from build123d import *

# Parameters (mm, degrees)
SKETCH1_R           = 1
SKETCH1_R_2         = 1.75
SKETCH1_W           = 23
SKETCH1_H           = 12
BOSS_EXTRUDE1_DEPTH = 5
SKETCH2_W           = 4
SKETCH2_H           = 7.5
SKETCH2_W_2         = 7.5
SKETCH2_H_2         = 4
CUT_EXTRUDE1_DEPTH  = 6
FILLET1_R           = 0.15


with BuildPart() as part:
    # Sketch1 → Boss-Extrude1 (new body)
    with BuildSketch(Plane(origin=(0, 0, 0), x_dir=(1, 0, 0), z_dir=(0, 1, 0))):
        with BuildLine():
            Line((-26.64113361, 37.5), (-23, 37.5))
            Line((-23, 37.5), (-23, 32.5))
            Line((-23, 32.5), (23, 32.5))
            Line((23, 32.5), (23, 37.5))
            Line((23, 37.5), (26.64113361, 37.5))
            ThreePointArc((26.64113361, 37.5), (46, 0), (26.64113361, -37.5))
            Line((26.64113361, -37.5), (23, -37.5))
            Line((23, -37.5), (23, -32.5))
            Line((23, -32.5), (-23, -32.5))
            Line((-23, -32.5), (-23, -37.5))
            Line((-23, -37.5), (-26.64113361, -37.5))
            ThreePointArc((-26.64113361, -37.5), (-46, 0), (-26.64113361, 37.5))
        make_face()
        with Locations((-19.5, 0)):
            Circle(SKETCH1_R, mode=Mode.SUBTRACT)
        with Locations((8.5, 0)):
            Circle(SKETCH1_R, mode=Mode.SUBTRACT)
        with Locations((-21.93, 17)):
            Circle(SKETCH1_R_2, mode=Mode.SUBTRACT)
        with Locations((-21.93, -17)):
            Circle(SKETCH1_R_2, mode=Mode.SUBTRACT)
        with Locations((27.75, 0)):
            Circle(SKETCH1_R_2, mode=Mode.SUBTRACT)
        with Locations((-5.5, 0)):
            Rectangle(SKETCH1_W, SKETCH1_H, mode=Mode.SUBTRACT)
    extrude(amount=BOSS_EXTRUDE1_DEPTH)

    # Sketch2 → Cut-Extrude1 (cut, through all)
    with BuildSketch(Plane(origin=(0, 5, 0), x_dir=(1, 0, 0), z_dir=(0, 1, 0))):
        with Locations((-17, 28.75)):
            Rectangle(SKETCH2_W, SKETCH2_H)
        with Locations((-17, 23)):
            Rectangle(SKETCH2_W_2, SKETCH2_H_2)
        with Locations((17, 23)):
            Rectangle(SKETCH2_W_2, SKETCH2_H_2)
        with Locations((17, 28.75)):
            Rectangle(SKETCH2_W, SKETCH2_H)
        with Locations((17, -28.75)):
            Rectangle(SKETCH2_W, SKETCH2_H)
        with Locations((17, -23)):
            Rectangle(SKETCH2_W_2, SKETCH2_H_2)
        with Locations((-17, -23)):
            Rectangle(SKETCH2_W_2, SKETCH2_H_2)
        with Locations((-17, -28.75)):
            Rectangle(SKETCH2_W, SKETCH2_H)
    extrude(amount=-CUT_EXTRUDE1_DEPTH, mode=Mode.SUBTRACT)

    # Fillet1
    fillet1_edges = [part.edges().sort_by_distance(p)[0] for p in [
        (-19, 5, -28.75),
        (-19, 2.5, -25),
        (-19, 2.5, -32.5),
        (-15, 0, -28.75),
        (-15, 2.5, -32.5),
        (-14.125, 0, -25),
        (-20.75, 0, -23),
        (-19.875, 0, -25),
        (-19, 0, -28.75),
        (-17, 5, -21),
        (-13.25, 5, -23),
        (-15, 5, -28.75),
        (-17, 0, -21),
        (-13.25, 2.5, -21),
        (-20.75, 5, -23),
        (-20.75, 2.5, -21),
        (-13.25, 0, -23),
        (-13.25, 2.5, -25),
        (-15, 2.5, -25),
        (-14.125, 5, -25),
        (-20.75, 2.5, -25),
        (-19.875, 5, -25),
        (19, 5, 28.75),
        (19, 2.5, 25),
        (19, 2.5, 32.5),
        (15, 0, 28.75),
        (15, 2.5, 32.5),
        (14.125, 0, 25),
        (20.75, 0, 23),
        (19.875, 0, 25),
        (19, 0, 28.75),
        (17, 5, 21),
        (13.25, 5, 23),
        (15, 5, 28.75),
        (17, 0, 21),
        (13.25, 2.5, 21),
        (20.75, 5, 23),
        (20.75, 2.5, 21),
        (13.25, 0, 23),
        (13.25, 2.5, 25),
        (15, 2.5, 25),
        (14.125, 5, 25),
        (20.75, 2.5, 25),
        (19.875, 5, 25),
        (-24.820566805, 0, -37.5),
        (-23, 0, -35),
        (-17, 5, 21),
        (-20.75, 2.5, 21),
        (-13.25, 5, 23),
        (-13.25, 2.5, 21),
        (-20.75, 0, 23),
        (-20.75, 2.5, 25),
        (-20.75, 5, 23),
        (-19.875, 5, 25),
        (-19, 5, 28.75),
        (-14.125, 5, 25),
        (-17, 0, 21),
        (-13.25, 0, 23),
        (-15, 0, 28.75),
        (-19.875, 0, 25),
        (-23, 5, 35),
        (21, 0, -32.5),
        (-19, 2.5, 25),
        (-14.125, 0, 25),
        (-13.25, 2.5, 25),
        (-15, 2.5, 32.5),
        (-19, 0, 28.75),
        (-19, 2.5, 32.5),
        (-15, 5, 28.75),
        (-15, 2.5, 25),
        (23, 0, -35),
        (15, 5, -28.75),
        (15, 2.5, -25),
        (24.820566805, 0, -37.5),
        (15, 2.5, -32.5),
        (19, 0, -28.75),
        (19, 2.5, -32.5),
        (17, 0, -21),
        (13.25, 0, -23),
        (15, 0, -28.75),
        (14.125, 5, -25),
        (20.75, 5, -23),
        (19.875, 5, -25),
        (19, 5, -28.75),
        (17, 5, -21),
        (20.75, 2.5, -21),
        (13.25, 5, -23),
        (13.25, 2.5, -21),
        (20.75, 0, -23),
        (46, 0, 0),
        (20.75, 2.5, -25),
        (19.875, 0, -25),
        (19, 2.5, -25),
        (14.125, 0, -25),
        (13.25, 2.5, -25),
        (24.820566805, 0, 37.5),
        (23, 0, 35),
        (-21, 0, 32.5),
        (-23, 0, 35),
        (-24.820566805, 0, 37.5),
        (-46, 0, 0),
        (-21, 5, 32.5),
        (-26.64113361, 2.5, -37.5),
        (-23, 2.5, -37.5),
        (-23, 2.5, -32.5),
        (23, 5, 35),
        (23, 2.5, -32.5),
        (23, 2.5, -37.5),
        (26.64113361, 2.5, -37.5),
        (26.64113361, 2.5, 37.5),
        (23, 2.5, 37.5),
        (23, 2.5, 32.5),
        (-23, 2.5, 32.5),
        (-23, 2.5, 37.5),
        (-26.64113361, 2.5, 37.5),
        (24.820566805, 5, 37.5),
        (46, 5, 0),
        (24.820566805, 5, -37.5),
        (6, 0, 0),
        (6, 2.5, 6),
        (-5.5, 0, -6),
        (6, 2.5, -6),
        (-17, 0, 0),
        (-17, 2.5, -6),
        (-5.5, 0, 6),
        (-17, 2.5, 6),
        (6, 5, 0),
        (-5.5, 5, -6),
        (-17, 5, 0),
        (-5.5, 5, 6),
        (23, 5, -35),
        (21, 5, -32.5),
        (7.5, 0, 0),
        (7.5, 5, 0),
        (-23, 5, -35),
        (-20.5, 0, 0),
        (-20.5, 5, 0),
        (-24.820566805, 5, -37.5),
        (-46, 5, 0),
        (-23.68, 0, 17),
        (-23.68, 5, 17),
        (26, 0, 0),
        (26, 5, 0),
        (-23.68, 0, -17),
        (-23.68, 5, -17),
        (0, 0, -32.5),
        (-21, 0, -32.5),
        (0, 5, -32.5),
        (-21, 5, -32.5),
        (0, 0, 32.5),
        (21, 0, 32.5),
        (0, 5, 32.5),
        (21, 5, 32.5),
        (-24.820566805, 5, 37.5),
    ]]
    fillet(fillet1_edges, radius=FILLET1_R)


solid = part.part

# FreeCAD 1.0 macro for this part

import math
import FreeCAD as App
import Part
import Sketcher
from FreeCAD import Vector
Q = App.Units.Quantity


def add_polygon(sketch, points):
    """Adds a closed chain of lines whose ends are joined by coincident constraints."""
    first, n = sketch.GeometryCount, len(points)
    for a, b in zip(points, points[1:] + points[:1]):
        sketch.addGeometry(Part.LineSegment(App.Vector(*a, 0), App.Vector(*b, 0)), False)
    for i in range(n):
        sketch.addConstraint(Sketcher.Constraint("Coincident", first + i, 2, first + (i + 1) % n, 1))

doc = App.newDocument("Part")
body = doc.addObject("PartDesign::Body", "Body")

sketch1 = body.newObject("Sketcher::SketchObject", "Sketch")
sketch1.AttachmentSupport = (doc.getObject("XZ_Plane"), [""])
sketch1.MapMode = "FlatFace"
sketch1.addGeometry(Part.LineSegment(Vector(-23, -37.5, 0), Vector(-26.6, -37.5, 0)), False)
sketch1.addGeometry(Part.ArcOfCircle(Part.Circle(Vector(0, 0, 0), Vector(0, 0, 1), 46), math.radians(125), math.radians(235)), False)
sketch1.addGeometry(Part.LineSegment(Vector(-26.6, 37.5, 0), Vector(-23, 37.5, 0)), False)
sketch1.addGeometry(Part.LineSegment(Vector(-23, 37.5, 0), Vector(-23, 32.5, 0)), False)
sketch1.addGeometry(Part.LineSegment(Vector(-23, 32.5, 0), Vector(23, 32.5, 0)), False)
sketch1.addGeometry(Part.LineSegment(Vector(23, 32.5, 0), Vector(23, 37.5, 0)), False)
sketch1.addGeometry(Part.LineSegment(Vector(23, 37.5, 0), Vector(26.6, 37.5, 0)), False)
sketch1.addGeometry(Part.ArcOfCircle(Part.Circle(Vector(0, 0, 0), Vector(0, 0, 1), 46), math.radians(-55), math.radians(55)), False)
sketch1.addGeometry(Part.LineSegment(Vector(26.6, -37.5, 0), Vector(23, -37.5, 0)), False)
sketch1.addGeometry(Part.LineSegment(Vector(23, -37.5, 0), Vector(23, -32.5, 0)), False)
sketch1.addGeometry(Part.LineSegment(Vector(23, -32.5, 0), Vector(-23, -32.5, 0)), False)
sketch1.addGeometry(Part.LineSegment(Vector(-23, -32.5, 0), Vector(-23, -37.5, 0)), False)
sketch1.addGeometry(Part.Circle(Vector(-21.9, 17, 0), Vector(0, 0, 1), 1.8), False)
sketch1.addGeometry(Part.Circle(Vector(27.8, 0, 0), Vector(0, 0, 1), 1.8), False)
sketch1.addGeometry(Part.Circle(Vector(8.5, 0, 0), Vector(0, 0, 1), 1), False)
add_polygon(sketch1, [(-17, 6), (-17, -6), (6, -6), (6, 6)])
sketch1.addGeometry(Part.Circle(Vector(-19.5, 0, 0), Vector(0, 0, 1), 1), False)
sketch1.addGeometry(Part.Circle(Vector(-21.9, -17, 0), Vector(0, 0, 1), 1.8), False)
sketch1.addConstraint(Sketcher.Constraint("Coincident", 0, 2, 1, 2))
sketch1.addConstraint(Sketcher.Constraint("Coincident", 1, 1, 2, 1))
sketch1.addConstraint(Sketcher.Constraint("Coincident", 2, 2, 3, 1))
sketch1.addConstraint(Sketcher.Constraint("Coincident", 3, 2, 4, 1))
sketch1.addConstraint(Sketcher.Constraint("Coincident", 4, 2, 5, 1))
sketch1.addConstraint(Sketcher.Constraint("Coincident", 5, 2, 6, 1))
sketch1.addConstraint(Sketcher.Constraint("Coincident", 6, 2, 7, 2))
sketch1.addConstraint(Sketcher.Constraint("Coincident", 7, 1, 8, 1))
sketch1.addConstraint(Sketcher.Constraint("Coincident", 8, 2, 9, 1))
sketch1.addConstraint(Sketcher.Constraint("Coincident", 9, 2, 10, 1))
sketch1.addConstraint(Sketcher.Constraint("Coincident", 10, 2, 11, 1))
sketch1.addConstraint(Sketcher.Constraint("Coincident", 11, 2, 0, 1))
sketch1.addConstraint(Sketcher.Constraint("Horizontal", 0))
sketch1.addConstraint(Sketcher.Constraint("Horizontal", 2))
sketch1.addConstraint(Sketcher.Constraint("Vertical", 3))
sketch1.addConstraint(Sketcher.Constraint("Horizontal", 4))
sketch1.addConstraint(Sketcher.Constraint("Vertical", 5))
sketch1.addConstraint(Sketcher.Constraint("Horizontal", 6))
sketch1.addConstraint(Sketcher.Constraint("Horizontal", 8))
sketch1.addConstraint(Sketcher.Constraint("Vertical", 9))
sketch1.addConstraint(Sketcher.Constraint("Horizontal", 10))
sketch1.addConstraint(Sketcher.Constraint("Vertical", 11))
sketch1.addConstraint(Sketcher.Constraint("Vertical", 15))
sketch1.addConstraint(Sketcher.Constraint("Horizontal", 16))
sketch1.addConstraint(Sketcher.Constraint("Vertical", 17))
sketch1.addConstraint(Sketcher.Constraint("Horizontal", 18))
sketch1.addConstraint(Sketcher.Constraint("Coincident", 1, 3, -1, 1))
sketch1.addConstraint(Sketcher.Constraint("Coincident", 7, 3, -1, 1))
sketch1.addConstraint(Sketcher.Constraint("Equal", 1, 7))
sketch1.addConstraint(Sketcher.Constraint("Equal", 12, 13))
sketch1.addConstraint(Sketcher.Constraint("Equal", 14, 19))
sketch1.addConstraint(Sketcher.Constraint("Equal", 13, 20))
sketch1.addConstraint(Sketcher.Constraint("Symmetric", 2, 2, 8, 2, -1, 1))
sketch1.addConstraint(Sketcher.Constraint("Symmetric", 4, 2, 10, 2, -1, 1))
sketch1.addConstraint(Sketcher.Constraint("Symmetric", 2, 2, 5, 2, -2))
sketch1.addConstraint(Sketcher.Constraint("Symmetric", 12, 3, 20, 3, -1))
sketch1.addConstraint(Sketcher.Constraint("PointOnObject", 13, 3, -1))
sketch1.addConstraint(Sketcher.Constraint("PointOnObject", 14, 3, -1))
sketch1.addConstraint(Sketcher.Constraint("PointOnObject", 19, 3, -1))
sketch1.addConstraint(Sketcher.Constraint("Horizontal", 0, 2, 7, 1))
sketch1.addConstraint(Sketcher.Constraint("Diameter", 14, Q("2 mm")))
sketch1.addConstraint(Sketcher.Constraint("Radius", 1, Q("46 mm")))
sketch1.addConstraint(Sketcher.Constraint("Diameter", 12, Q("3.5 mm")))
sketch1.addConstraint(Sketcher.Constraint("DistanceX", 4, 1, 4, 2, Q("46 mm")))
sketch1.addConstraint(Sketcher.Constraint("DistanceX", 16, 1, 16, 2, Q("23 mm")))
sketch1.addConstraint(Sketcher.Constraint("DistanceY", 3, 2, 3, 1, Q("5 mm")))
sketch1.addConstraint(Sketcher.Constraint("DistanceY", 15, 2, 15, 1, Q("12 mm")))
sketch1.addConstraint(Sketcher.Constraint("DistanceY", -1, 1, 12, 3, Q("17 mm")))
sketch1.addConstraint(Sketcher.Constraint("DistanceX", 15, 2, -1, 1, Q("17 mm")))
sketch1.addConstraint(Sketcher.Constraint("DistanceY", 15, 2, -1, 1, Q("6 mm")))
sketch1.addConstraint(Sketcher.Constraint("DistanceX", 19, 3, 14, 3, Q("28 mm")))
sketch1.addConstraint(Sketcher.Constraint("DistanceX", -1, 1, 14, 3, Q("8.5 mm")))
sketch1.addConstraint(Sketcher.Constraint("DistanceY", 0, 2, -1, 1, Q("37.5 mm")))
sketch1.addConstraint(Sketcher.Constraint("DistanceX", 12, 3, -1, 1, Q("21.93 mm")))
sketch1.addConstraint(Sketcher.Constraint("DistanceX", -1, 1, 13, 3, Q("27.75 mm")))
pad1 = body.newObject("PartDesign::Pad", "Pad")
pad1.Profile = sketch1
pad1.Length = 5
pad1.Reversed = True

sketch2 = body.newObject("Sketcher::SketchObject", "Sketch001")
sketch2.AttachmentSupport = (doc.getObject("XZ_Plane"), [""])
sketch2.MapMode = "FlatFace"
sketch2.AttachmentOffset = App.Placement(Vector(0, 0, -5), App.Rotation())
add_polygon(sketch2, [(-19, -32.5), (-19, -25), (-20.8, -25), (-20.8, -21), (-13.2, -21), (-13.2, -25), (-15, -25), (-15, -32.5)])
add_polygon(sketch2, [(13.2, -25), (13.2, -21), (20.8, -21), (20.8, -25), (19, -25), (19, -32.5), (15, -32.5), (15, -25)])
add_polygon(sketch2, [(15, 25), (15, 32.5), (19, 32.5), (19, 25), (20.8, 25), (20.8, 21), (13.2, 21), (13.2, 25)])
add_polygon(sketch2, [(-20.8, 21), (-20.8, 25), (-19, 25), (-19, 32.5), (-15, 32.5), (-15, 25), (-13.2, 25), (-13.2, 21)])
sketch2.addConstraint(Sketcher.Constraint("Vertical", 0))
sketch2.addConstraint(Sketcher.Constraint("Horizontal", 1))
sketch2.addConstraint(Sketcher.Constraint("Vertical", 2))
sketch2.addConstraint(Sketcher.Constraint("Horizontal", 3))
sketch2.addConstraint(Sketcher.Constraint("Vertical", 4))
sketch2.addConstraint(Sketcher.Constraint("Horizontal", 5))
sketch2.addConstraint(Sketcher.Constraint("Vertical", 6))
sketch2.addConstraint(Sketcher.Constraint("Horizontal", 7))
sketch2.addConstraint(Sketcher.Constraint("Vertical", 8))
sketch2.addConstraint(Sketcher.Constraint("Horizontal", 9))
sketch2.addConstraint(Sketcher.Constraint("Vertical", 10))
sketch2.addConstraint(Sketcher.Constraint("Horizontal", 11))
sketch2.addConstraint(Sketcher.Constraint("Vertical", 12))
sketch2.addConstraint(Sketcher.Constraint("Horizontal", 13))
sketch2.addConstraint(Sketcher.Constraint("Vertical", 14))
sketch2.addConstraint(Sketcher.Constraint("Horizontal", 15))
sketch2.addConstraint(Sketcher.Constraint("Vertical", 16))
sketch2.addConstraint(Sketcher.Constraint("Horizontal", 17))
sketch2.addConstraint(Sketcher.Constraint("Vertical", 18))
sketch2.addConstraint(Sketcher.Constraint("Horizontal", 19))
sketch2.addConstraint(Sketcher.Constraint("Vertical", 20))
sketch2.addConstraint(Sketcher.Constraint("Horizontal", 21))
sketch2.addConstraint(Sketcher.Constraint("Vertical", 22))
sketch2.addConstraint(Sketcher.Constraint("Horizontal", 23))
sketch2.addConstraint(Sketcher.Constraint("Vertical", 24))
sketch2.addConstraint(Sketcher.Constraint("Horizontal", 25))
sketch2.addConstraint(Sketcher.Constraint("Vertical", 26))
sketch2.addConstraint(Sketcher.Constraint("Horizontal", 27))
sketch2.addConstraint(Sketcher.Constraint("Vertical", 28))
sketch2.addConstraint(Sketcher.Constraint("Horizontal", 29))
sketch2.addConstraint(Sketcher.Constraint("Vertical", 30))
sketch2.addConstraint(Sketcher.Constraint("Horizontal", 31))
sketch2.addConstraint(Sketcher.Constraint("Symmetric", 6, 2, 16, 2, -1, 1))
sketch2.addConstraint(Sketcher.Constraint("Symmetric", 0, 2, 18, 2, -1, 1))
sketch2.addConstraint(Sketcher.Constraint("Symmetric", 2, 2, 20, 2, -1, 1))
sketch2.addConstraint(Sketcher.Constraint("Symmetric", 4, 2, 22, 2, -1, 1))
sketch2.addConstraint(Sketcher.Constraint("Symmetric", 10, 2, 24, 2, -1, 1))
sketch2.addConstraint(Sketcher.Constraint("Symmetric", 12, 2, 26, 2, -1, 1))
sketch2.addConstraint(Sketcher.Constraint("Symmetric", 14, 2, 28, 2, -1, 1))
sketch2.addConstraint(Sketcher.Constraint("Symmetric", 8, 2, 30, 2, -1, 1))
sketch2.addConstraint(Sketcher.Constraint("Symmetric", 3, 2, 8, 2, -2))
sketch2.addConstraint(Sketcher.Constraint("Symmetric", 1, 2, 10, 2, -2))
sketch2.addConstraint(Sketcher.Constraint("Symmetric", 7, 2, 12, 2, -2))
sketch2.addConstraint(Sketcher.Constraint("Symmetric", 5, 2, 14, 2, -2))
sketch2.addConstraint(Sketcher.Constraint("Horizontal", 1, 2, 4, 2))
sketch2.addConstraint(Sketcher.Constraint("Equal", 1, 5))
sketch2.addConstraint(Sketcher.Constraint("Equal", 31, 0))
sketch2.addConstraint(Sketcher.Constraint("Equal", 27, 2))
sketch2.addConstraint(Sketcher.Constraint("DistanceX", 7, 2, 7, 1, Q("4 mm")))
sketch2.addConstraint(Sketcher.Constraint("DistanceX", 3, 1, 3, 2, Q("7.5 mm")))
sketch2.addConstraint(Sketcher.Constraint("DistanceX", 0, 2, -1, 1, Q("19 mm")))
sketch2.addConstraint(Sketcher.Constraint("DistanceY", 0, 2, -1, 1, Q("25 mm")))
pocket1 = body.newObject("PartDesign::Pocket", "Pocket")
pocket1.Profile = sketch2
pocket1.Type = "ThroughAll"
pocket1.Reversed = True
doc.recompute()

fillet = body.newObject("PartDesign::Fillet", "Fillet")
fillet.Base = (pocket1, ["Edge1"])
fillet.UseAllEdges = True
fillet.Radius = 0.15

doc.recompute()
